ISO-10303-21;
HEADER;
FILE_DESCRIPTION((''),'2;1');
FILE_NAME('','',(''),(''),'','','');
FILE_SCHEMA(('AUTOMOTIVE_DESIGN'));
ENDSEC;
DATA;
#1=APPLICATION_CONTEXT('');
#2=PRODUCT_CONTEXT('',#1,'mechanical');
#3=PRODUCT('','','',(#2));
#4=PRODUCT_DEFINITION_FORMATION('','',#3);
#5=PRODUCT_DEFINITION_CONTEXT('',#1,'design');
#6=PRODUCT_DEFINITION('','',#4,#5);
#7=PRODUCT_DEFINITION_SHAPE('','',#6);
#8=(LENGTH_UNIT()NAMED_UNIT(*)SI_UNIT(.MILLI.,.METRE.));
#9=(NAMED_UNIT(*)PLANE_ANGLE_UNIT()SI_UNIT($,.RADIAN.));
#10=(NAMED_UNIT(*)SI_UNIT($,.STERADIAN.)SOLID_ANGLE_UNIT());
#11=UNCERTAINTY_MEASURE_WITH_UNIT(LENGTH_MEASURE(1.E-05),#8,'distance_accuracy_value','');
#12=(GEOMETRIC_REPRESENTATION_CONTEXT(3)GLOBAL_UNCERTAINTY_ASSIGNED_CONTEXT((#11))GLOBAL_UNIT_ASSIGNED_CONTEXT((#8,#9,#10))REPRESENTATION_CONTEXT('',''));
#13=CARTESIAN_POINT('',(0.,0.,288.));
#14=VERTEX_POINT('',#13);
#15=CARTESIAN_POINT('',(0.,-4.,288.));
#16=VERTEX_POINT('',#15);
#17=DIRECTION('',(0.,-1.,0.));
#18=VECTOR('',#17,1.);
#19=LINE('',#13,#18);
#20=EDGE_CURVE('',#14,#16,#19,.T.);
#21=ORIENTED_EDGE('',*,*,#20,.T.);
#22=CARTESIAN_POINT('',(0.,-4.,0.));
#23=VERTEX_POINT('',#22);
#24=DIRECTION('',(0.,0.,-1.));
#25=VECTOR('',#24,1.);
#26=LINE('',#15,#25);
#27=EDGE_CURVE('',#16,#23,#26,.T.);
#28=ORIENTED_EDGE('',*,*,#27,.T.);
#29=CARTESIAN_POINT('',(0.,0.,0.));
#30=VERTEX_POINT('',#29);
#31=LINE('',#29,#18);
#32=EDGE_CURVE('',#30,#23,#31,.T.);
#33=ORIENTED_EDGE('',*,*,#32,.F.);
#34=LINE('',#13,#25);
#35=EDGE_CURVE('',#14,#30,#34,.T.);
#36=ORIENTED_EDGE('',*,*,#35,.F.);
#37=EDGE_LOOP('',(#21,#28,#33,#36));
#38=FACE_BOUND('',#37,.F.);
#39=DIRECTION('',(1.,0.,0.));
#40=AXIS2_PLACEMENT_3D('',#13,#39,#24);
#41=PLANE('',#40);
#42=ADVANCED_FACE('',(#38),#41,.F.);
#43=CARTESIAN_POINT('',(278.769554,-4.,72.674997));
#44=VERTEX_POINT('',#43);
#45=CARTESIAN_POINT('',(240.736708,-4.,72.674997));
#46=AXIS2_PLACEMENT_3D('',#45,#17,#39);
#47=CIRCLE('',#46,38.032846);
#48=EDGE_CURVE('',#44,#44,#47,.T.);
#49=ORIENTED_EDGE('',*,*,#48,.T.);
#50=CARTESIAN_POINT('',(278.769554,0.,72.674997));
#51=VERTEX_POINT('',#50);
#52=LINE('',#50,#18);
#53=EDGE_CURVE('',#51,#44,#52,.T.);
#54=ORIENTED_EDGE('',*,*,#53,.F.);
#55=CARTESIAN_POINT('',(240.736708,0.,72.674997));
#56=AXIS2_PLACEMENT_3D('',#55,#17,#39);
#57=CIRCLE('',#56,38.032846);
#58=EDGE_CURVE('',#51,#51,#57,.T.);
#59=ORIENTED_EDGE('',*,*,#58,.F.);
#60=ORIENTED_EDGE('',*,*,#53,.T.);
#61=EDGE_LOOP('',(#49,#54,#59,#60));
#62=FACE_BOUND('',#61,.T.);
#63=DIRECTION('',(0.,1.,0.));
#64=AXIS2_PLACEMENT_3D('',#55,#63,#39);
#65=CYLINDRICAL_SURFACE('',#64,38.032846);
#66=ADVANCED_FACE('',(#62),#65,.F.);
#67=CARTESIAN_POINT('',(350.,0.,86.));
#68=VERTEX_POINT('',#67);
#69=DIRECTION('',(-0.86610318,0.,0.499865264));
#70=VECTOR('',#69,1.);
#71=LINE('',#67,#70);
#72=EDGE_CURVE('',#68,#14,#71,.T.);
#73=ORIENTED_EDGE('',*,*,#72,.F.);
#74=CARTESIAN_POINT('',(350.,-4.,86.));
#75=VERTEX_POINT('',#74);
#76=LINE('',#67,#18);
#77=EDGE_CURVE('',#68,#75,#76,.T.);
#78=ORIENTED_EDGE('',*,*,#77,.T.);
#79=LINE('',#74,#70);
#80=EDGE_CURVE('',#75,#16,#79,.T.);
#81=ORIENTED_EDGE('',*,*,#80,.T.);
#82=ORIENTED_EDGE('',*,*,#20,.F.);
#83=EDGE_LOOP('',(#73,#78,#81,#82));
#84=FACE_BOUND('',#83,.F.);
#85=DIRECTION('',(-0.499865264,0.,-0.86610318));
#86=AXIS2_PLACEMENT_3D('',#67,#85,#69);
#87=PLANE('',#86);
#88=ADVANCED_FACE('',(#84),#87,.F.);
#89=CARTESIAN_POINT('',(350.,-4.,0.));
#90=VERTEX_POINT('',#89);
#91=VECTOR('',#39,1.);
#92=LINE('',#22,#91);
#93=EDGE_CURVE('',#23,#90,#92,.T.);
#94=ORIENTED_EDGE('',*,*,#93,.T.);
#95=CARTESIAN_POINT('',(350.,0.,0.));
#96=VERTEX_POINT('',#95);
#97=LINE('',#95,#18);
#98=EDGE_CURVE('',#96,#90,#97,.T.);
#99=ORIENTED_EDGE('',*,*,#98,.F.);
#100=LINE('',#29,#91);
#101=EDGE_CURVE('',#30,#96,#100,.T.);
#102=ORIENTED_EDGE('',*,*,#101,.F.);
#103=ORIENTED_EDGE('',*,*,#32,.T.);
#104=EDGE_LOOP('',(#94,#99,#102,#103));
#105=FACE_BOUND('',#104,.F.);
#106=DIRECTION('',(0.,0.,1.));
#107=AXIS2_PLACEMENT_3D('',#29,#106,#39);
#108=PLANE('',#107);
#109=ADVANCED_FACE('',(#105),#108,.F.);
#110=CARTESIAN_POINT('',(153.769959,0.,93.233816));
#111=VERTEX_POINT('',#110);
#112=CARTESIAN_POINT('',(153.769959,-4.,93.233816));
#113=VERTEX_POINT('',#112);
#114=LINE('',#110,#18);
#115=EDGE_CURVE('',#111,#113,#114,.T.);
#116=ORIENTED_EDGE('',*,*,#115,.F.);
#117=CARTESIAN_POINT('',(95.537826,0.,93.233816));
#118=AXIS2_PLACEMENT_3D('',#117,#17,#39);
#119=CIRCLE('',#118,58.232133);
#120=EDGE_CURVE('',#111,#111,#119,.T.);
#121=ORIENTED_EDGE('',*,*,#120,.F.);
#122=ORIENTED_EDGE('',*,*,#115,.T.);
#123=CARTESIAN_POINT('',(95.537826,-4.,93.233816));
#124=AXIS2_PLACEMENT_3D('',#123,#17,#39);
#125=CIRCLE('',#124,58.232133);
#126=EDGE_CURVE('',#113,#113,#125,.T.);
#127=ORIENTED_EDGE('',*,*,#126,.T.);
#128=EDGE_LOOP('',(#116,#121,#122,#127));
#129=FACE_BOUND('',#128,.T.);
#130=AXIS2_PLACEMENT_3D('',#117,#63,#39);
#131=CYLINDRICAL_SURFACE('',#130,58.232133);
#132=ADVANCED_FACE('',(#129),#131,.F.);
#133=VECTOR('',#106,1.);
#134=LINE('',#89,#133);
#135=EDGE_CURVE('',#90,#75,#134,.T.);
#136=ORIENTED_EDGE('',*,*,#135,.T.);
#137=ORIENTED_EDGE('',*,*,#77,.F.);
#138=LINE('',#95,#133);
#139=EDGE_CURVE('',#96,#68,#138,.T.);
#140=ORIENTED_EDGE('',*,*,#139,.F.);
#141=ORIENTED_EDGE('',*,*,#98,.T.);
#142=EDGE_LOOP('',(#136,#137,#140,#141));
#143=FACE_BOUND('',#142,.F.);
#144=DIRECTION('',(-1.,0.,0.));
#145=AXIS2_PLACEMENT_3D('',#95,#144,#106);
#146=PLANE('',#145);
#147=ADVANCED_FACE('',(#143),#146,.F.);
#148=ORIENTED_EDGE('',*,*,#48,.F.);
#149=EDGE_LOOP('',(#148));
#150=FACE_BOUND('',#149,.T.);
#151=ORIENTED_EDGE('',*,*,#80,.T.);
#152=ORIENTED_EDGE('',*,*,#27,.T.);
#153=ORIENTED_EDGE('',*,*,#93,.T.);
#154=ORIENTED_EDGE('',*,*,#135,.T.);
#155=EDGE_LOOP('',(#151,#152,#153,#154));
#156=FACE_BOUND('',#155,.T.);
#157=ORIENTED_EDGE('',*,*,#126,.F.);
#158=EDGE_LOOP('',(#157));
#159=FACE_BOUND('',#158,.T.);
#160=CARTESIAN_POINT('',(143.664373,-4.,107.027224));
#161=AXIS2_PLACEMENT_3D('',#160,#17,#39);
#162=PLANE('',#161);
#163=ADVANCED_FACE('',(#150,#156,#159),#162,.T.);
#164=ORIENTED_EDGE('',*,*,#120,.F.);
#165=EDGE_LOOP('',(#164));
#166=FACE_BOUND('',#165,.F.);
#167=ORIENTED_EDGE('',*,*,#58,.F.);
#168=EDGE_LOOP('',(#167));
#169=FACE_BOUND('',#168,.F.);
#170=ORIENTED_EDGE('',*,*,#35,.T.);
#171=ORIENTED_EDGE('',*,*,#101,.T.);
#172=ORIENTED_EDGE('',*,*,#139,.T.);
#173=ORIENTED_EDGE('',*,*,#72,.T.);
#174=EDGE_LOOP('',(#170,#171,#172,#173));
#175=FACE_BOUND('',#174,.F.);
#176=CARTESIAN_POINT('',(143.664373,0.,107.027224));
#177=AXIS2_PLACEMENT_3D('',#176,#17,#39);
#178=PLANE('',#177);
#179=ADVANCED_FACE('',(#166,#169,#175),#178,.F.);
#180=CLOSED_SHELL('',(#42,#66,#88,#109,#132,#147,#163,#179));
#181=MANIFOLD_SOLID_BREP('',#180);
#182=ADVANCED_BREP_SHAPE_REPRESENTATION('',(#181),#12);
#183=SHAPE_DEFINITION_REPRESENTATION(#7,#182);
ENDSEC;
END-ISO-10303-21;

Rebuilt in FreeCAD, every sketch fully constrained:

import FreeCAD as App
import Part
import Sketcher

V = App.Vector

doc = App.newDocument("Part")
body = doc.addObject("PartDesign::Body", "Body")

# Sketch on XZ plane
sketch1 = body.newObject("Sketcher::SketchObject", "Sketch")
sketch1.AttachmentSupport = (doc.getObject("XZ_Plane"), [""])
sketch1.MapMode = "FlatFace"
sketch1.addGeometry([
    Part.LineSegment(V(0, 288, 0), V(0, 0, 0)),  # 0
    Part.LineSegment(V(0, 0, 0), V(350, 0, 0)),  # 1
    Part.LineSegment(V(350, 0, 0), V(350, 86, 0)),  # 2
    Part.LineSegment(V(350, 86, 0), V(0, 288, 0)),  # 3
    Part.Circle(V(241, 73, 0), V(0, 0, 1), 38),  # 4
    Part.Circle(V(96, 93, 0), V(0, 0, 1), 58),  # 5
], False)
sketch1.addConstraint([
    Sketcher.Constraint("Coincident", 0, 2, 1, 1),
    Sketcher.Constraint("Coincident", 1, 2, 2, 1),
    Sketcher.Constraint("Coincident", 2, 2, 3, 1),
    Sketcher.Constraint("Coincident", 3, 2, 0, 1),
    Sketcher.Constraint("Vertical", 0),
    Sketcher.Constraint("Horizontal", 1),
    Sketcher.Constraint("Vertical", 2),
    Sketcher.Constraint("Coincident", 0, 2, -1, 1),
    Sketcher.Constraint("DistanceX", 1, 1, 1, 2, 350.0),
    Sketcher.Constraint("DistanceY", 0, 2, 0, 1, 288.0),
    Sketcher.Constraint("DistanceY", 2, 1, 2, 2, 86.0),
    Sketcher.Constraint("Diameter", 4, 76.065692),
    Sketcher.Constraint("Diameter", 5, 116.464266),
    Sketcher.Constraint("DistanceX", -1, 1, 4, 3, 240.736708),
    Sketcher.Constraint("DistanceX", 5, 3, 4, 3, 145.198882),
    Sketcher.Constraint("DistanceY", 4, 3, 5, 3, 20.558819),
    Sketcher.Constraint("DistanceY", -1, 1, 4, 3, 72.674997),
])
pad1 = body.newObject("PartDesign::Pad", "Pad")
pad1.Profile = sketch1
pad1.Length = 4

doc.recompute()
